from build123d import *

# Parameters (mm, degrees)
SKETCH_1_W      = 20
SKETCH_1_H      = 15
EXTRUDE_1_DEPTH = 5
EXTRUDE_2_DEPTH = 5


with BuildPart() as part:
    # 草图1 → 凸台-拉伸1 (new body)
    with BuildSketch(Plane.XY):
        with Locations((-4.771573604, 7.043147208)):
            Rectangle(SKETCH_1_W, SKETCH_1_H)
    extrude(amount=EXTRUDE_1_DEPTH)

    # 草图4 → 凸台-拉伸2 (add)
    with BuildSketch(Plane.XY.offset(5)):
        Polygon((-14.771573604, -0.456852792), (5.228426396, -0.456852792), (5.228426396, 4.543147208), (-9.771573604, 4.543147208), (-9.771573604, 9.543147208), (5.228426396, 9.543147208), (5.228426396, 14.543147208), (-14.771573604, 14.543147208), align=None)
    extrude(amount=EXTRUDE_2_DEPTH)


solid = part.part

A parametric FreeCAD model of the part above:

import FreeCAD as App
import Part
import Sketcher
Q = App.Units.Quantity


def add_polygon(sketch, points):
    """Adds a closed chain of lines whose ends are joined by coincident constraints."""
    first, n = sketch.GeometryCount, len(points)
    for a, b in zip(points, points[1:] + points[:1]):
        sketch.addGeometry(Part.LineSegment(App.Vector(*a, 0), App.Vector(*b, 0)), False)
    for i in range(n):
        sketch.addConstraint(Sketcher.Constraint("Coincident", first + i, 2, first + (i + 1) % n, 1))

doc = App.newDocument("Part")
body = doc.addObject("PartDesign::Body", "Body")

# Sketch on XY plane
sketch1 = body.newObject("Sketcher::SketchObject", "Sketch")
sketch1.AttachmentSupport = (doc.getObject("XY_Plane"), [""])
sketch1.MapMode = "FlatFace"
add_polygon(sketch1, [(-15, 15), (-15, 0), (5, 0), (5, 15)])  # lines 0-3
sketch1.addConstraint([
    Sketcher.Constraint("Vertical", 0),
    Sketcher.Constraint("Horizontal", 1),
    Sketcher.Constraint("Vertical", 2),
    Sketcher.Constraint("Horizontal", 3),
    Sketcher.Constraint("DistanceX", 1, 1, 1, 2, Q("20 mm")),
    Sketcher.Constraint("DistanceY", 0, 2, 0, 1, Q("15 mm")),
    Sketcher.Constraint("DistanceX", 0, 2, -1, 1, Q("14.771574 mm")),
    Sketcher.Constraint("DistanceY", 0, 2, -1, 1, Q("0.456853 mm")),
])
pad1 = body.newObject("PartDesign::Pad", "Pad")
pad1.Profile = sketch1
pad1.Length = 5

# Sketch on XY plane
sketch2 = body.newObject("Sketcher::SketchObject", "Sketch001")
sketch2.AttachmentSupport = (doc.getObject("XY_Plane"), [""])
sketch2.MapMode = "FlatFace"
sketch2.AttachmentOffset = App.Placement(App.Vector(0, 0, 5), App.Rotation())
add_polygon(sketch2, [(-15, 0), (5, 0), (5, 5), (-10, 5), (-10, 10), (5, 10), (5, 15), (-15, 15)])  # lines 0-7
sketch2.addConstraint([
    Sketcher.Constraint("Horizontal", 0),
    Sketcher.Constraint("Vertical", 1),
    Sketcher.Constraint("Horizontal", 2),
    Sketcher.Constraint("Vertical", 3),
    Sketcher.Constraint("Horizontal", 4),
    Sketcher.Constraint("Vertical", 5),
    Sketcher.Constraint("Horizontal", 6),
    Sketcher.Constraint("Vertical", 7),
    Sketcher.Constraint("Vertical", 1, 2, 4, 2),
    Sketcher.Constraint("Equal", 1, 3),
    Sketcher.Constraint("Equal", 3, 5),
    Sketcher.Constraint("Equal", 4, 7),
    Sketcher.Constraint("DistanceX", 0, 1, 0, 2, Q("20 mm")),
    Sketcher.Constraint("DistanceX", 2, 2, 2, 1, Q("15 mm")),
    Sketcher.Constraint("DistanceX", -1, 1, 0, 2, Q("5.228426 mm")),
    Sketcher.Constraint("DistanceY", 0, 2, -1, 1, Q("0.456853 mm")),
])
pad2 = body.newObject("PartDesign::Pad", "Pad001")
pad2.Profile = sketch2
pad2.Length = 5

doc.recompute()
